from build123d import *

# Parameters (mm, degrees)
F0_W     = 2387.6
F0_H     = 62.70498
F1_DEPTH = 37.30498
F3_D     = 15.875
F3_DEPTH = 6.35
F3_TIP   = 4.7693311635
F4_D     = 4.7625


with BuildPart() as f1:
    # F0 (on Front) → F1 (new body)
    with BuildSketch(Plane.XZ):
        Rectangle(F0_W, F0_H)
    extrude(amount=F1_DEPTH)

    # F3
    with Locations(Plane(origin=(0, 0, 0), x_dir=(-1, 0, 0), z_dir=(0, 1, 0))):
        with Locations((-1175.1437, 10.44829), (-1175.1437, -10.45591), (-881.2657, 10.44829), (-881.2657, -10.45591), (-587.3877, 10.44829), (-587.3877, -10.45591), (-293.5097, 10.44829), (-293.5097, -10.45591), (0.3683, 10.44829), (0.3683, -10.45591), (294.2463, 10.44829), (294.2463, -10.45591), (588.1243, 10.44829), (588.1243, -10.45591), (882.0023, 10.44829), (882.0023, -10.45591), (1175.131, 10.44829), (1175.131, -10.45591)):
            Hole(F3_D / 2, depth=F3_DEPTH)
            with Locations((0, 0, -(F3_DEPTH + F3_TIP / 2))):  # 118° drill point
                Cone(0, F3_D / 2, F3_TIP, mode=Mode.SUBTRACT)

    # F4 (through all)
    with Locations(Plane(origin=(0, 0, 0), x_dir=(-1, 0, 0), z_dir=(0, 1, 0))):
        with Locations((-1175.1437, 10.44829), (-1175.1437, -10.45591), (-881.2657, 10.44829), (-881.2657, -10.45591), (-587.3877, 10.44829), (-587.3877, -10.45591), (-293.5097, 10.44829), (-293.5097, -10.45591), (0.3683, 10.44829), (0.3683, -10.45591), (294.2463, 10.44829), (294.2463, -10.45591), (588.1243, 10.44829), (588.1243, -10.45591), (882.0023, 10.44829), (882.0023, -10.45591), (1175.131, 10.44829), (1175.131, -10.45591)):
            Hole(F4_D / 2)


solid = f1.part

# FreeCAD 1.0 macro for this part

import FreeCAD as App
import Part
import Sketcher

V = App.Vector
Q = App.Units.Quantity

doc = App.newDocument("Part")
params = doc.addObject("Spreadsheet::Sheet", "Params")
for row, (alias, value) in enumerate([
    ("sketch1_width", "94 in"),
    ("pad1_length", "1.4687 in"),
    ("sketch2_diameter", "0.625 in"),
    ("hole_diameter", "0.625 in"),
    ("hole_depth", "0.25 in"),
    ("sketch3_diameter", "0.1875 in"),
    ("hole2_diameter", "0.1875 in"),
], start=1):
    params.set(f"A{row}", alias)
    params.set(f"B{row}", "=" + value)
    params.setAlias(f"B{row}", alias)

body = doc.addObject("PartDesign::Body", "Body")

sketch1 = doc.addObject("Sketcher::SketchObject", "Sketch")
body.addObject(sketch1)
sketch1.AttachmentSupport = (doc.XZ_Plane, [""])
sketch1.MapMode = "FlatFace"
sketch1.addGeometry(Part.LineSegment(V(-1194, 31, 0), V(-1194, -31, 0)), False)
sketch1.addGeometry(Part.LineSegment(V(-1194, -31, 0), V(1194, -31, 0)), False)
sketch1.addGeometry(Part.LineSegment(V(1194, -31, 0), V(1194, 31, 0)), False)
sketch1.addGeometry(Part.LineSegment(V(1194, 31, 0), V(-1194, 31, 0)), False)
sketch1.addConstraint(Sketcher.Constraint("Coincident", 0, 2, 1, 1))
sketch1.addConstraint(Sketcher.Constraint("Coincident", 1, 2, 2, 1))
sketch1.addConstraint(Sketcher.Constraint("Coincident", 2, 2, 3, 1))
sketch1.addConstraint(Sketcher.Constraint("Coincident", 3, 2, 0, 1))
sketch1.addConstraint(Sketcher.Constraint("Vertical", 0))
sketch1.addConstraint(Sketcher.Constraint("Horizontal", 1))
sketch1.addConstraint(Sketcher.Constraint("Vertical", 2))
sketch1.addConstraint(Sketcher.Constraint("Horizontal", 3))
sketch1.addConstraint(Sketcher.Constraint("Symmetric", 0, 2, 2, 2, -1, 1))
sketch1.addConstraint(Sketcher.Constraint("DistanceX", 1, 1, 1, 2, Q("94 in")))
sketch1.addConstraint(Sketcher.Constraint("DistanceY", 0, 2, 0, 1, Q("2.4687 in")))
sketch1.setExpression("Constraints[9]", "Params.sketch1_width")
pad1 = doc.addObject("PartDesign::Pad", "Pad")
body.addObject(pad1)
pad1.Profile = sketch1
pad1.setExpression("Length", "Params.pad1_length")

sketch2 = doc.addObject("Sketcher::SketchObject", "Sketch001")
body.addObject(sketch2)
sketch2.AttachmentSupport = (doc.XZ_Plane, [""])
sketch2.MapMode = "FlatFace"
sketch2.addGeometry(Part.Circle(V(1175, 10, 0), V(0, 0, 1), 8), False)
sketch2.addGeometry(Part.Circle(V(1175, -10, 0), V(0, 0, 1), 8), False)
sketch2.addGeometry(Part.Circle(V(881, 10, 0), V(0, 0, 1), 8), False)
sketch2.addGeometry(Part.Circle(V(881, -10, 0), V(0, 0, 1), 8), False)
sketch2.addGeometry(Part.Circle(V(587, 10, 0), V(0, 0, 1), 8), False)
sketch2.addGeometry(Part.Circle(V(587, -10, 0), V(0, 0, 1), 8), False)
sketch2.addGeometry(Part.Circle(V(294, 10, 0), V(0, 0, 1), 8), False)
sketch2.addGeometry(Part.Circle(V(294, -10, 0), V(0, 0, 1), 8), False)
sketch2.addGeometry(Part.Circle(V(0, 10, 0), V(0, 0, 1), 8), False)
sketch2.addGeometry(Part.Circle(V(0, -10, 0), V(0, 0, 1), 8), False)
sketch2.addGeometry(Part.Circle(V(-294, 10, 0), V(0, 0, 1), 8), False)
sketch2.addGeometry(Part.Circle(V(-294, -10, 0), V(0, 0, 1), 8), False)
sketch2.addGeometry(Part.Circle(V(-588, 10, 0), V(0, 0, 1), 8), False)
sketch2.addGeometry(Part.Circle(V(-588, -10, 0), V(0, 0, 1), 8), False)
sketch2.addGeometry(Part.Circle(V(-882, 10, 0), V(0, 0, 1), 8), False)
sketch2.addGeometry(Part.Circle(V(-882, -10, 0), V(0, 0, 1), 8), False)
sketch2.addGeometry(Part.Circle(V(-1175, 10, 0), V(0, 0, 1), 8), False)
sketch2.addGeometry(Part.Circle(V(-1175, -10, 0), V(0, 0, 1), 8), False)
sketch2.addConstraint(Sketcher.Constraint("Equal", 0, 1))
sketch2.addConstraint(Sketcher.Constraint("Equal", 1, 2))
sketch2.addConstraint(Sketcher.Constraint("Equal", 2, 3))
sketch2.addConstraint(Sketcher.Constraint("Equal", 3, 4))
sketch2.addConstraint(Sketcher.Constraint("Equal", 4, 5))
sketch2.addConstraint(Sketcher.Constraint("Equal", 5, 6))
sketch2.addConstraint(Sketcher.Constraint("Equal", 6, 7))
sketch2.addConstraint(Sketcher.Constraint("Equal", 7, 8))
sketch2.addConstraint(Sketcher.Constraint("Equal", 8, 9))
sketch2.addConstraint(Sketcher.Constraint("Equal", 9, 10))
sketch2.addConstraint(Sketcher.Constraint("Equal", 10, 11))
sketch2.addConstraint(Sketcher.Constraint("Equal", 11, 12))
sketch2.addConstraint(Sketcher.Constraint("Equal", 12, 13))
sketch2.addConstraint(Sketcher.Constraint("Equal", 13, 14))
sketch2.addConstraint(Sketcher.Constraint("Equal", 14, 15))
sketch2.addConstraint(Sketcher.Constraint("Equal", 15, 16))
sketch2.addConstraint(Sketcher.Constraint("Equal", 16, 17))
sketch2.addConstraint(Sketcher.Constraint("Horizontal", 0, 3, 2, 3))
sketch2.addConstraint(Sketcher.Constraint("Horizontal", 1, 3, 3, 3))
sketch2.addConstraint(Sketcher.Constraint("Horizontal", 2, 3, 4, 3))
sketch2.addConstraint(Sketcher.Constraint("Horizontal", 3, 3, 5, 3))
sketch2.addConstraint(Sketcher.Constraint("Horizontal", 4, 3, 6, 3))
sketch2.addConstraint(Sketcher.Constraint("Horizontal", 5, 3, 7, 3))
sketch2.addConstraint(Sketcher.Constraint("Horizontal", 6, 3, 8, 3))
sketch2.addConstraint(Sketcher.Constraint("Horizontal", 7, 3, 9, 3))
sketch2.addConstraint(Sketcher.Constraint("Horizontal", 8, 3, 10, 3))
sketch2.addConstraint(Sketcher.Constraint("Horizontal", 9, 3, 11, 3))
sketch2.addConstraint(Sketcher.Constraint("Horizontal", 10, 3, 12, 3))
sketch2.addConstraint(Sketcher.Constraint("Horizontal", 11, 3, 13, 3))
sketch2.addConstraint(Sketcher.Constraint("Horizontal", 12, 3, 14, 3))
sketch2.addConstraint(Sketcher.Constraint("Horizontal", 13, 3, 15, 3))
sketch2.addConstraint(Sketcher.Constraint("Horizontal", 14, 3, 16, 3))
sketch2.addConstraint(Sketcher.Constraint("Horizontal", 15, 3, 17, 3))
sketch2.addConstraint(Sketcher.Constraint("Vertical", 0, 3, 1, 3))
sketch2.addConstraint(Sketcher.Constraint("Vertical", 2, 3, 3, 3))
sketch2.addConstraint(Sketcher.Constraint("Vertical", 4, 3, 5, 3))
sketch2.addConstraint(Sketcher.Constraint("Vertical", 6, 3, 7, 3))
sketch2.addConstraint(Sketcher.Constraint("Vertical", 8, 3, 9, 3))
sketch2.addConstraint(Sketcher.Constraint("Vertical", 10, 3, 11, 3))
sketch2.addConstraint(Sketcher.Constraint("Vertical", 12, 3, 13, 3))
sketch2.addConstraint(Sketcher.Constraint("Vertical", 14, 3, 15, 3))
sketch2.addConstraint(Sketcher.Constraint("Vertical", 16, 3, 17, 3))
sketch2.addConstraint(Sketcher.Constraint("Diameter", 0, Q("0.625 in")))
sketch2.addConstraint(Sketcher.Constraint("DistanceX", 2, 3, 0, 3, Q("11.57 in")))
sketch2.addConstraint(Sketcher.Constraint("DistanceX", 4, 3, 2, 3, Q("11.57 in")))
sketch2.addConstraint(Sketcher.Constraint("DistanceX", 6, 3, 4, 3, Q("11.57 in")))
sketch2.addConstraint(Sketcher.Constraint("DistanceX", 8, 3, 6, 3, Q("11.57 in")))
sketch2.addConstraint(Sketcher.Constraint("DistanceX", 10, 3, 8, 3, Q("11.57 in")))
sketch2.addConstraint(Sketcher.Constraint("DistanceX", 12, 3, 10, 3, Q("11.57 in")))
sketch2.addConstraint(Sketcher.Constraint("DistanceX", 14, 3, 12, 3, Q("11.57 in")))
sketch2.addConstraint(Sketcher.Constraint("DistanceX", 16, 3, -1, 1, Q("46.265 in")))
sketch2.addConstraint(Sketcher.Constraint("DistanceY", 1, 3, 0, 3, Q("0.823 in")))
sketch2.addConstraint(Sketcher.Constraint("DistanceX", -1, 1, 0, 3, Q("46.2655 in")))
sketch2.addConstraint(Sketcher.Constraint("DistanceY", -1, 1, 0, 3, Q("10.44829 mm")))
sketch2.setExpression("Constraints[42]", "Params.sketch2_diameter")
doc.recompute()
hole = doc.addObject("PartDesign::Hole", "Hole")
body.addObject(hole)
hole.Profile = sketch2
hole.ThreadType = "None"
hole.setExpression("Diameter", "Params.hole_diameter")
hole.DepthType = "Dimension"
hole.setExpression("Depth", "Params.hole_depth")
hole.DrillPoint = "Angled"
hole.DrillPointAngle = 118
hole.Reversed = True

sketch3 = doc.addObject("Sketcher::SketchObject", "Sketch002")
body.addObject(sketch3)
sketch3.AttachmentSupport = (doc.XZ_Plane, [""])
sketch3.MapMode = "FlatFace"
sketch3.addGeometry(Part.Circle(V(1175.1, 10.4, 0), V(0, 0, 1), 2.4), False)
sketch3.addGeometry(Part.Circle(V(1175.1, -10.5, 0), V(0, 0, 1), 2.4), False)
sketch3.addGeometry(Part.Circle(V(881.3, 10.4, 0), V(0, 0, 1), 2.4), False)
sketch3.addGeometry(Part.Circle(V(881.3, -10.5, 0), V(0, 0, 1), 2.4), False)
sketch3.addGeometry(Part.Circle(V(587.4, 10.4, 0), V(0, 0, 1), 2.4), False)
sketch3.addGeometry(Part.Circle(V(587.4, -10.5, 0), V(0, 0, 1), 2.4), False)
sketch3.addGeometry(Part.Circle(V(293.5, 10.4, 0), V(0, 0, 1), 2.4), False)
sketch3.addGeometry(Part.Circle(V(293.5, -10.5, 0), V(0, 0, 1), 2.4), False)
sketch3.addGeometry(Part.Circle(V(-0.4, 10.4, 0), V(0, 0, 1), 2.4), False)
sketch3.addGeometry(Part.Circle(V(-0.4, -10.5, 0), V(0, 0, 1), 2.4), False)
sketch3.addGeometry(Part.Circle(V(-294.2, 10.4, 0), V(0, 0, 1), 2.4), False)
sketch3.addGeometry(Part.Circle(V(-294.2, -10.5, 0), V(0, 0, 1), 2.4), False)
sketch3.addGeometry(Part.Circle(V(-588.1, 10.4, 0), V(0, 0, 1), 2.4), False)
sketch3.addGeometry(Part.Circle(V(-588.1, -10.5, 0), V(0, 0, 1), 2.4), False)
sketch3.addGeometry(Part.Circle(V(-882, 10.4, 0), V(0, 0, 1), 2.4), False)
sketch3.addGeometry(Part.Circle(V(-882, -10.5, 0), V(0, 0, 1), 2.4), False)
sketch3.addGeometry(Part.Circle(V(-1175.1, 10.4, 0), V(0, 0, 1), 2.4), False)
sketch3.addGeometry(Part.Circle(V(-1175.1, -10.5, 0), V(0, 0, 1), 2.4), False)
sketch3.addConstraint(Sketcher.Constraint("Equal", 0, 1))
sketch3.addConstraint(Sketcher.Constraint("Equal", 1, 2))
sketch3.addConstraint(Sketcher.Constraint("Equal", 2, 3))
sketch3.addConstraint(Sketcher.Constraint("Equal", 3, 4))
sketch3.addConstraint(Sketcher.Constraint("Equal", 4, 5))
sketch3.addConstraint(Sketcher.Constraint("Equal", 5, 6))
sketch3.addConstraint(Sketcher.Constraint("Equal", 6, 7))
sketch3.addConstraint(Sketcher.Constraint("Equal", 7, 8))
sketch3.addConstraint(Sketcher.Constraint("Equal", 8, 9))
sketch3.addConstraint(Sketcher.Constraint("Equal", 9, 10))
sketch3.addConstraint(Sketcher.Constraint("Equal", 10, 11))
sketch3.addConstraint(Sketcher.Constraint("Equal", 11, 12))
sketch3.addConstraint(Sketcher.Constraint("Equal", 12, 13))
sketch3.addConstraint(Sketcher.Constraint("Equal", 13, 14))
sketch3.addConstraint(Sketcher.Constraint("Equal", 14, 15))
sketch3.addConstraint(Sketcher.Constraint("Equal", 15, 16))
sketch3.addConstraint(Sketcher.Constraint("Equal", 16, 17))
sketch3.addConstraint(Sketcher.Constraint("Horizontal", 0, 3, 2, 3))
sketch3.addConstraint(Sketcher.Constraint("Horizontal", 1, 3, 3, 3))
sketch3.addConstraint(Sketcher.Constraint("Horizontal", 2, 3, 4, 3))
sketch3.addConstraint(Sketcher.Constraint("Horizontal", 3, 3, 5, 3))
sketch3.addConstraint(Sketcher.Constraint("Horizontal", 4, 3, 6, 3))
sketch3.addConstraint(Sketcher.Constraint("Horizontal", 5, 3, 7, 3))
sketch3.addConstraint(Sketcher.Constraint("Horizontal", 6, 3, 8, 3))
sketch3.addConstraint(Sketcher.Constraint("Horizontal", 7, 3, 9, 3))
sketch3.addConstraint(Sketcher.Constraint("Horizontal", 8, 3, 10, 3))
sketch3.addConstraint(Sketcher.Constraint("Horizontal", 9, 3, 11, 3))
sketch3.addConstraint(Sketcher.Constraint("Horizontal", 10, 3, 12, 3))
sketch3.addConstraint(Sketcher.Constraint("Horizontal", 11, 3, 13, 3))
sketch3.addConstraint(Sketcher.Constraint("Horizontal", 12, 3, 14, 3))
sketch3.addConstraint(Sketcher.Constraint("Horizontal", 13, 3, 15, 3))
sketch3.addConstraint(Sketcher.Constraint("Horizontal", 14, 3, 16, 3))
sketch3.addConstraint(Sketcher.Constraint("Horizontal", 15, 3, 17, 3))
sketch3.addConstraint(Sketcher.Constraint("Vertical", 0, 3, 1, 3))
sketch3.addConstraint(Sketcher.Constraint("Vertical", 2, 3, 3, 3))
sketch3.addConstraint(Sketcher.Constraint("Vertical", 4, 3, 5, 3))
sketch3.addConstraint(Sketcher.Constraint("Vertical", 6, 3, 7, 3))
sketch3.addConstraint(Sketcher.Constraint("Vertical", 8, 3, 9, 3))
sketch3.addConstraint(Sketcher.Constraint("Vertical", 10, 3, 11, 3))
sketch3.addConstraint(Sketcher.Constraint("Vertical", 12, 3, 13, 3))
sketch3.addConstraint(Sketcher.Constraint("Vertical", 14, 3, 15, 3))
sketch3.addConstraint(Sketcher.Constraint("Vertical", 16, 3, 17, 3))
sketch3.addConstraint(Sketcher.Constraint("Diameter", 0, Q("0.1875 in")))
sketch3.addConstraint(Sketcher.Constraint("DistanceX", 2, 3, 0, 3, Q("11.57 in")))
sketch3.addConstraint(Sketcher.Constraint("DistanceX", 4, 3, 2, 3, Q("11.57 in")))
sketch3.addConstraint(Sketcher.Constraint("DistanceX", 6, 3, 4, 3, Q("11.57 in")))
sketch3.addConstraint(Sketcher.Constraint("DistanceX", 8, 3, 6, 3, Q("11.57 in")))
sketch3.addConstraint(Sketcher.Constraint("DistanceX", 10, 3, 8, 3, Q("11.57 in")))
sketch3.addConstraint(Sketcher.Constraint("DistanceX", 12, 3, 10, 3, Q("11.57 in")))
sketch3.addConstraint(Sketcher.Constraint("DistanceX", 14, 3, 12, 3, Q("11.57 in")))
sketch3.addConstraint(Sketcher.Constraint("DistanceX", 16, 3, -1, 1, Q("46.265 in")))
sketch3.addConstraint(Sketcher.Constraint("DistanceY", 1, 3, 0, 3, Q("0.823 in")))
sketch3.addConstraint(Sketcher.Constraint("DistanceX", -1, 1, 0, 3, Q("46.2655 in")))
sketch3.addConstraint(Sketcher.Constraint("DistanceY", -1, 1, 0, 3, Q("10.44829 mm")))
sketch3.setExpression("Constraints[42]", "Params.sketch3_diameter")
doc.recompute()
hole2 = doc.addObject("PartDesign::Hole", "Hole001")
body.addObject(hole2)
hole2.Profile = sketch3
hole2.ThreadType = "None"
hole2.setExpression("Diameter", "Params.hole2_diameter")
hole2.DepthType = "ThroughAll"
hole2.Reversed = True

doc.recompute()
